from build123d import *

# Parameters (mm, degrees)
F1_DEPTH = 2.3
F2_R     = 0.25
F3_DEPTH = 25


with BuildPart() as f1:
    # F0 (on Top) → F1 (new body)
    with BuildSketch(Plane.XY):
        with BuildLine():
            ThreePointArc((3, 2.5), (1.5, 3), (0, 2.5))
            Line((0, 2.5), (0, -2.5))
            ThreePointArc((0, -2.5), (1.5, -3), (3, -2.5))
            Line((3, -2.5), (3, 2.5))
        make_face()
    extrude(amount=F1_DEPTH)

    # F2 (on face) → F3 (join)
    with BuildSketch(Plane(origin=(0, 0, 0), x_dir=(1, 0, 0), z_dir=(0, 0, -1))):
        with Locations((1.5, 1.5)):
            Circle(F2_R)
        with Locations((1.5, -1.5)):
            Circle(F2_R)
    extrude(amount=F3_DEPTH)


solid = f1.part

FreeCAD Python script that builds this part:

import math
import FreeCAD as App
import Part
import Sketcher
from FreeCAD import Vector
Q = App.Units.Quantity

doc = App.newDocument("Part")
params = doc.addObject("Spreadsheet::Sheet", "Params")
for row, (alias, value) in enumerate([
    ("sketch1_radius", "2.5 mm"),
    ("sketch1_height", "5 mm"),
    ("pad1_length", "2.3 mm"),
    ("sketch2_diameter", "0.5 mm"),
    ("pad2_length", "25 mm"),
], start=1):
    params.set(f"A{row}", alias)
    params.set(f"B{row}", "=" + value)
    params.setAlias(f"B{row}", alias)

body = doc.addObject("PartDesign::Body", "Body")

# Sketch on XY plane
sketch1 = doc.addObject("Sketcher::SketchObject", "Sketch")
body.addObject(sketch1)
sketch1.AttachmentSupport = (doc.XY_Plane, [""])
sketch1.MapMode = "FlatFace"
sketch1.addGeometry(Part.ArcOfCircle(Part.Circle(Vector(1.5, 0.5, 0), Vector(0, 0, 1), 2.5), math.radians(53), math.radians(127)), False)
sketch1.addGeometry(Part.LineSegment(Vector(0, 2.5, 0), Vector(0, -2.5, 0)), False)
sketch1.addGeometry(Part.ArcOfCircle(Part.Circle(Vector(1.5, -0.5, 0), Vector(0, 0, 1), 2.5), math.radians(-127), math.radians(-53)), False)
sketch1.addGeometry(Part.LineSegment(Vector(3, -2.5, 0), Vector(3, 2.5, 0)), False)
sketch1.addConstraint(Sketcher.Constraint("Coincident", 0, 2, 1, 1))
sketch1.addConstraint(Sketcher.Constraint("Coincident", 1, 2, 2, 1))
sketch1.addConstraint(Sketcher.Constraint("Coincident", 2, 2, 3, 1))
sketch1.addConstraint(Sketcher.Constraint("Coincident", 3, 2, 0, 1))
sketch1.addConstraint(Sketcher.Constraint("Vertical", 1))
sketch1.addConstraint(Sketcher.Constraint("Vertical", 3))
sketch1.addConstraint(Sketcher.Constraint("Equal", 0, 2))
sketch1.addConstraint(Sketcher.Constraint("Symmetric", 0, 2, 1, 2, -1, 1))
sketch1.addConstraint(Sketcher.Constraint("Horizontal", 1, 2, 2, 2))
sketch1.addConstraint(Sketcher.Constraint("Horizontal", 0, 2, 3, 2))
sketch1.addConstraint(Sketcher.Constraint("Radius", 0, Q("2.5 mm")))
sketch1.addConstraint(Sketcher.Constraint("DistanceY", 1, 2, 1, 1, Q("5 mm")))
sketch1.addConstraint(Sketcher.Constraint("DistanceX", -1, 1, 2, 2, Q("3 mm")))
sketch1.setExpression("Constraints[10]", "Params.sketch1_radius")
sketch1.setExpression("Constraints[11]", "Params.sketch1_height")
pad1 = doc.addObject("PartDesign::Pad", "Pad")
body.addObject(pad1)
pad1.Profile = sketch1
pad1.setExpression("Length", "Params.pad1_length")

# Sketch on XY plane
sketch2 = doc.addObject("Sketcher::SketchObject", "Sketch001")
body.addObject(sketch2)
sketch2.AttachmentSupport = (doc.XY_Plane, [""])
sketch2.MapMode = "FlatFace"
sketch2.addGeometry(Part.Circle(Vector(1.5, -1.5, 0), Vector(0, 0, 1), 0.25), False)
sketch2.addGeometry(Part.Circle(Vector(1.5, 1.5, 0), Vector(0, 0, 1), 0.25), False)
sketch2.addConstraint(Sketcher.Constraint("Equal", 0, 1))
sketch2.addConstraint(Sketcher.Constraint("Symmetric", 0, 3, 1, 3, -1))
sketch2.addConstraint(Sketcher.Constraint("Diameter", 0, Q("0.5 mm")))
sketch2.addConstraint(Sketcher.Constraint("DistanceY", 0, 3, 1, 3, Q("3 mm")))
sketch2.addConstraint(Sketcher.Constraint("DistanceX", -1, 1, 0, 3, Q("1.5 mm")))
sketch2.setExpression("Constraints[2]", "Params.sketch2_diameter")
pad2 = doc.addObject("PartDesign::Pad", "Pad001")
body.addObject(pad2)
pad2.Profile = sketch2
pad2.setExpression("Length", "Params.pad2_length")
pad2.Reversed = True

doc.recompute()
